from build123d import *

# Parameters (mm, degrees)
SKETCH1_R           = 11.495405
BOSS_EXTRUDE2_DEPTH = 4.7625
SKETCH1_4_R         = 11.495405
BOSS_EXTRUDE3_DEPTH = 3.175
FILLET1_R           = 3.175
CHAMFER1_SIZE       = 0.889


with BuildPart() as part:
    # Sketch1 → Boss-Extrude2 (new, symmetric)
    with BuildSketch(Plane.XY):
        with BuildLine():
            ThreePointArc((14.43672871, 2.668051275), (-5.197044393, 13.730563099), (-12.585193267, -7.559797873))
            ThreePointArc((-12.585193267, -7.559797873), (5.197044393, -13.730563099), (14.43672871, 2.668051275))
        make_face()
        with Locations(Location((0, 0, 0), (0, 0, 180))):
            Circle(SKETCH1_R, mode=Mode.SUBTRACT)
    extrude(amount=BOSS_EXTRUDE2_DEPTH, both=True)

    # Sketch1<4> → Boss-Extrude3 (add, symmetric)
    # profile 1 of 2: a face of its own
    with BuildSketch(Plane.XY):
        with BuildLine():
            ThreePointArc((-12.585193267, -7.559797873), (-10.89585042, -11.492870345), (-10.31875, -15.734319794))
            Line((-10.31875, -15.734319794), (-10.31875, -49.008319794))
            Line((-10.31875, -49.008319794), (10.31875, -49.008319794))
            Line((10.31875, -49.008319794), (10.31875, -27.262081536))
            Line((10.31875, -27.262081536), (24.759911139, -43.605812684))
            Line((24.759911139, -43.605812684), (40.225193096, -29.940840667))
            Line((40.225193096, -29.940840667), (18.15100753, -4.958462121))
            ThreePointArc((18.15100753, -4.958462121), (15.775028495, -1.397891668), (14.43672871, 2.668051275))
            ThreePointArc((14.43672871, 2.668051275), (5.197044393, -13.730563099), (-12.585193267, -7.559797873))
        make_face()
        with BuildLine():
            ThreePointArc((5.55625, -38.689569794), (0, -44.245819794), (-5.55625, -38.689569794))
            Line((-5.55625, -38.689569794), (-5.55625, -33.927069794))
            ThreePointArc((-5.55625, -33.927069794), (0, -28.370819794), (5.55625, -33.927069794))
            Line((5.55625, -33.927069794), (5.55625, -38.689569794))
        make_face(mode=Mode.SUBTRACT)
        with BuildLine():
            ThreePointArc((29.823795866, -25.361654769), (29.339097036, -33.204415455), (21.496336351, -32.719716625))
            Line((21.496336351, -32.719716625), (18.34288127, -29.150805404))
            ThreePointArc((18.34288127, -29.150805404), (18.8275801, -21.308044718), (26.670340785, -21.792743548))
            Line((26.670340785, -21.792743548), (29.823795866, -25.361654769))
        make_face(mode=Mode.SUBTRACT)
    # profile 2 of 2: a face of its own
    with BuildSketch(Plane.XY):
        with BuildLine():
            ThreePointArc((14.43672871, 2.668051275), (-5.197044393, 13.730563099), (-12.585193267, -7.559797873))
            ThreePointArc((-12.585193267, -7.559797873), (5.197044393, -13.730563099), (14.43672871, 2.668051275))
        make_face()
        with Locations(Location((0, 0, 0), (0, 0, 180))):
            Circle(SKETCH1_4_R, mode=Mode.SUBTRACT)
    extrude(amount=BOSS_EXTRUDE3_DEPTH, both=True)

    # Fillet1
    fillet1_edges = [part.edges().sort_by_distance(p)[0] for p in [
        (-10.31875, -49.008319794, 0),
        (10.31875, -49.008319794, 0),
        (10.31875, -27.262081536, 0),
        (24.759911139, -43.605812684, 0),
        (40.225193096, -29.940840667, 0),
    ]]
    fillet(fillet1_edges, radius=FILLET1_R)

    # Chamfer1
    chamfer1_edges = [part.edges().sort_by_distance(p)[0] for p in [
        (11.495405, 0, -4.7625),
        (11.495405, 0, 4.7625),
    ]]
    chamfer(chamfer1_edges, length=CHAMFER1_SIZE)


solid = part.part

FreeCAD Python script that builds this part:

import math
import FreeCAD as App
import Part
import Sketcher
from FreeCAD import Vector
Q = App.Units.Quantity


def edges_at(feature, points):
    """Names of the edges that pass closest to the given points."""
    edges = feature.Shape.Edges
    near = lambda p: min(range(len(edges)), key=lambda i: edges[i].distToShape(Part.Vertex(*p))[0])
    return sorted({f"Edge{near(p) + 1}" for p in points})

doc = App.newDocument("Part")
body = doc.addObject("PartDesign::Body", "Body")

sketch1 = body.newObject("Sketcher::SketchObject", "Sketch")
sketch1.AttachmentSupport = (doc.getObject("XY_Plane"), [""])
sketch1.MapMode = "FlatFace"
sketch1.addGeometry(Part.ArcOfCircle(Part.Circle(Vector(0, 0, 0), Vector(0, 0, 1), 15), math.radians(10), math.radians(211)), False)
sketch1.addGeometry(Part.ArcOfCircle(Part.Circle(Vector(0, 0, 0), Vector(0, 0, 1), 15), math.radians(-149), math.radians(10)), False)
sketch1.addGeometry(Part.Circle(Vector(0, 0, 0), Vector(0, 0, 1), 11), False)
sketch1.addConstraint(Sketcher.Constraint("Tangent", 0, 1, 1, 2))
sketch1.addConstraint(Sketcher.Constraint("Coincident", 1, 1, 0, 2))
sketch1.addConstraint(Sketcher.Constraint("Coincident", 0, 3, -1, 1))
sketch1.addConstraint(Sketcher.Constraint("Coincident", 2, 3, -1, 1))
sketch1.addConstraint(Sketcher.Constraint("Radius", 0, Q("0.578 in")))
sketch1.addConstraint(Sketcher.Constraint("Diameter", 2, Q("22.99081 mm")))
sketch1.addConstraint(Sketcher.Constraint("DistanceX", -1, 1, 0, 1, Q("14.436729 mm")))
sketch1.addConstraint(Sketcher.Constraint("DistanceX", 1, 1, 0, 1, Q("27.021922 mm")))
pad1 = body.newObject("PartDesign::Pad", "Pad")
pad1.Profile = sketch1
pad1.Length = Q("0.375 in")
pad1.Midplane = True

sketch2 = body.newObject("Sketcher::SketchObject", "Sketch001")
sketch2.AttachmentSupport = (doc.getObject("XY_Plane"), [""])
sketch2.MapMode = "FlatFace"
sketch2.addGeometry(Part.ArcOfCircle(Part.Circle(Vector(-26.2, -15.7, 0), Vector(0, 0, 1), 15.9), math.radians(0), math.radians(31)), False)
sketch2.addGeometry(Part.LineSegment(Vector(-10.3, -15.7, 0), Vector(-10.3, -49, 0)), False)
sketch2.addGeometry(Part.LineSegment(Vector(-10.3, -49, 0), Vector(10.3, -49, 0)), False)
sketch2.addGeometry(Part.LineSegment(Vector(10.3, -49, 0), Vector(10.3, -27.3, 0)), False)
sketch2.addGeometry(Part.LineSegment(Vector(10.3, -27.3, 0), Vector(24.8, -43.6, 0)), False)
sketch2.addGeometry(Part.LineSegment(Vector(24.8, -43.6, 0), Vector(40.2, -29.9, 0)), False)
sketch2.addGeometry(Part.LineSegment(Vector(40.2, -29.9, 0), Vector(18.2, -5, 0)), False)
sketch2.addGeometry(Part.ArcOfCircle(Part.Circle(Vector(30, 5.6, 0), Vector(0, 0, 1), 15.9), math.radians(-170), math.radians(-139)), False)
sketch2.addGeometry(Part.ArcOfCircle(Part.Circle(Vector(0, 0, 0), Vector(0, 0, 1), 14.7), math.radians(10), math.radians(211)), False)
sketch2.addGeometry(Part.LineSegment(Vector(5.6, -33.9, 0), Vector(5.6, -38.7, 0)), False)
sketch2.addGeometry(Part.ArcOfCircle(Part.Circle(Vector(0, -38.7, 0), Vector(0, 0, 1), 5.6), math.radians(180), math.radians(360)), False)
sketch2.addGeometry(Part.LineSegment(Vector(-5.6, -38.7, 0), Vector(-5.6, -33.9, 0)), False)
sketch2.addGeometry(Part.ArcOfCircle(Part.Circle(Vector(0, -33.9, 0), Vector(0, 0, 1), 5.6), math.radians(0), math.radians(180)), False)
sketch2.addGeometry(Part.LineSegment(Vector(26.7, -21.8, 0), Vector(29.8, -25.4, 0)), False)
sketch2.addGeometry(Part.ArcOfCircle(Part.Circle(Vector(25.7, -29, 0), Vector(0, 0, 1), 5.6), math.radians(-139), math.radians(41)), False)
sketch2.addGeometry(Part.LineSegment(Vector(21.5, -32.7, 0), Vector(18.3, -29.2, 0)), False)
sketch2.addGeometry(Part.ArcOfCircle(Part.Circle(Vector(22.5, -25.5, 0), Vector(0, 0, 1), 5.6), math.radians(41), math.radians(221)), False)
sketch2.addGeometry(Part.Circle(Vector(0, 0, 0), Vector(0, 0, 1), 11.5), False)
sketch2.addConstraint(Sketcher.Constraint("Tangent", 0, 1, 1, 1))
sketch2.addConstraint(Sketcher.Constraint("Coincident", 1, 2, 2, 1))
sketch2.addConstraint(Sketcher.Constraint("Coincident", 2, 2, 3, 1))
sketch2.addConstraint(Sketcher.Constraint("Coincident", 3, 2, 4, 1))
sketch2.addConstraint(Sketcher.Constraint("Coincident", 4, 2, 5, 1))
sketch2.addConstraint(Sketcher.Constraint("Coincident", 5, 2, 6, 1))
sketch2.addConstraint(Sketcher.Constraint("Tangent", 6, 2, 7, 2))
sketch2.addConstraint(Sketcher.Constraint("Tangent", 7, 1, 8, 1))
sketch2.addConstraint(Sketcher.Constraint("Tangent", 8, 2, 0, 2))
sketch2.addConstraint(Sketcher.Constraint("Tangent", 9, 2, 10, 2))
sketch2.addConstraint(Sketcher.Constraint("Tangent", 10, 1, 11, 1))
sketch2.addConstraint(Sketcher.Constraint("Tangent", 11, 2, 12, 2))
sketch2.addConstraint(Sketcher.Constraint("Tangent", 12, 1, 9, 1))
sketch2.addConstraint(Sketcher.Constraint("Tangent", 13, 2, 14, 2))
sketch2.addConstraint(Sketcher.Constraint("Tangent", 14, 1, 15, 1))
sketch2.addConstraint(Sketcher.Constraint("Tangent", 15, 2, 16, 2))
sketch2.addConstraint(Sketcher.Constraint("Tangent", 16, 1, 13, 1))
sketch2.addConstraint(Sketcher.Constraint("Vertical", 1))
sketch2.addConstraint(Sketcher.Constraint("Horizontal", 2))
sketch2.addConstraint(Sketcher.Constraint("Vertical", 3))
sketch2.addConstraint(Sketcher.Constraint("Vertical", 9))
sketch2.addConstraint(Sketcher.Constraint("Vertical", 11))
sketch2.addConstraint(Sketcher.Constraint("Coincident", 8, 3, -1, 1))
sketch2.addConstraint(Sketcher.Constraint("Coincident", 17, 3, -1, 1))
sketch2.addConstraint(Sketcher.Constraint("Equal", 0, 7))
sketch2.addConstraint(Sketcher.Constraint("Equal", 12, 14))
sketch2.addConstraint(Sketcher.Constraint("Equal", 14, 16))
sketch2.addConstraint(Sketcher.Constraint("PointOnObject", 10, 3, -2))
sketch2.addConstraint(Sketcher.Constraint("Perpendicular", 4, 5))
sketch2.addConstraint(Sketcher.Constraint("Perpendicular", 5, 6))
sketch2.addConstraint(Sketcher.Constraint("Parallel", 6, 13))
sketch2.addConstraint(Sketcher.Constraint("Radius", 0, Q("0.625 in")))
sketch2.addConstraint(Sketcher.Constraint("Radius", 8, Q("0.578 in")))
sketch2.addConstraint(Sketcher.Constraint("Radius", 10, Q("0.21875 in")))
sketch2.addConstraint(Sketcher.Constraint("DistanceY", 1, 2, 1, 1, Q("1.31 in")))
sketch2.addConstraint(Sketcher.Constraint("DistanceX", 2, 1, 2, 2, Q("0.8125 in")))
sketch2.addConstraint(Sketcher.Constraint("DistanceY", 9, 2, 9, 1, Q("0.1875 in")))
sketch2.addConstraint(Sketcher.Constraint("Distance", 5, Q("0.8125 in")))
sketch2.addConstraint(Sketcher.Constraint("Distance", 6, Q("1.3125 in")))
sketch2.addConstraint(Sketcher.Constraint("Distance", 13, Q("0.1875 in")))
sketch2.addConstraint(Sketcher.Constraint("Diameter", 17, Q("22.99081 mm")))
sketch2.addConstraint(Sketcher.Constraint("DistanceX", 0, 3, -1, 1, Q("1.03125 in")))
sketch2.addConstraint(Sketcher.Constraint("DistanceY", 1, 2, 10, 3, Q("0.40625 in")))
sketch2.addConstraint(Sketcher.Constraint("DistanceY", 3, 1, 3, 2, Q("21.746238 mm")))
sketch2.addConstraint(Sketcher.Constraint("DistanceX", 16, 3, 4, 2, Q("2.2533 mm")))
sketch2.addConstraint(Sketcher.Constraint("Distance", 4, Q("21.809738 mm")))
sketch2.addConstraint(Sketcher.Constraint("DistanceY", 14, 3, 7, 3, Q("34.593741 mm")))
pad2 = body.newObject("PartDesign::Pad", "Pad001")
pad2.Profile = sketch2
pad2.Length = Q("0.25 in")
pad2.Midplane = True
doc.recompute()

fillet = body.newObject("PartDesign::Fillet", "Fillet")
fillet.Base = (pad2, edges_at(pad2, [
    (-10.319, -49.008, 0),
    (10.319, -49.008, 0),
    (10.319, -27.262, 0),
    (24.76, -43.606, 0),
    (40.225, -29.941, 0),
]))
fillet.Radius = Q("0.125 in")
doc.recompute()

chamfer = body.newObject("PartDesign::Chamfer", "Chamfer")
chamfer.Base = (fillet, edges_at(fillet, [(11.495, 0, -4.763), (11.495, 0, 4.763)]))
chamfer.Size = Q("0.035 in")

doc.recompute()
